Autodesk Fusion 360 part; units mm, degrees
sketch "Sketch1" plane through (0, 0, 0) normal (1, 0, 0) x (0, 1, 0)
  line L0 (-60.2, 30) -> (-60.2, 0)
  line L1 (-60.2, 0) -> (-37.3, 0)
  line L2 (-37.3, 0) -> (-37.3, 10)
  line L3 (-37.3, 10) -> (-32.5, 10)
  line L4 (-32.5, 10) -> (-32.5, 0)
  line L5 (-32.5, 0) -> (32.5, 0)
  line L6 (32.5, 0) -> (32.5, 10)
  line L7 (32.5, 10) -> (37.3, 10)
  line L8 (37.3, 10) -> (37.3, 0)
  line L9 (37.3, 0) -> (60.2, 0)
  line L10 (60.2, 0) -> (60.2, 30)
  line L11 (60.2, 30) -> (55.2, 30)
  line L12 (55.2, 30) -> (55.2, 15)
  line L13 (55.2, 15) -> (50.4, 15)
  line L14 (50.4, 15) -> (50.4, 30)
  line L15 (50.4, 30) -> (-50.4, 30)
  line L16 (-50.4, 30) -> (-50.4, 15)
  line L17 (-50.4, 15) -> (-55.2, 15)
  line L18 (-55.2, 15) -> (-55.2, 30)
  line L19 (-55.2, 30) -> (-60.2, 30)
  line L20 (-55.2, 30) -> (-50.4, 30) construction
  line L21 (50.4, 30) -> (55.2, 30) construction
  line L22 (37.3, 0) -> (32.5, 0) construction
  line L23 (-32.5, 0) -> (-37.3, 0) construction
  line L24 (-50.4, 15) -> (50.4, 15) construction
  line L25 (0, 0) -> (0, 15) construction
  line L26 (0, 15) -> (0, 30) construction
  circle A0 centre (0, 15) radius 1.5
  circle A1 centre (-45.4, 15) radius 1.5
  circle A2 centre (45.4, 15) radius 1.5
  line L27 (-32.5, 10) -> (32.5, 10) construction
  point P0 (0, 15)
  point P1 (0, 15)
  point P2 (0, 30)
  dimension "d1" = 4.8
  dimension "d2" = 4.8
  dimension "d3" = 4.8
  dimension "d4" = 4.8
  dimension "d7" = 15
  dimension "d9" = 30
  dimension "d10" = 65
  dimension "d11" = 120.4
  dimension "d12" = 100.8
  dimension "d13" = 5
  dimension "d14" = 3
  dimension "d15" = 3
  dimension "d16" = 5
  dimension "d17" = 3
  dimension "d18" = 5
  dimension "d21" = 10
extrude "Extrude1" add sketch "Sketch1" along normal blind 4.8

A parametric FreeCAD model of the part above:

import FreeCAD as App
import Part
import Sketcher

V = App.Vector
Q = App.Units.Quantity

doc = App.newDocument("Part")
body = doc.addObject("PartDesign::Body", "Body")

sketch1 = doc.addObject("Sketcher::SketchObject", "Sketch")
body.addObject(sketch1)
sketch1.AttachmentSupport = (doc.YZ_Plane, [""])
sketch1.MapMode = "FlatFace"
sketch1.addGeometry(Part.LineSegment(V(-55.2, 30, 0), V(-60.2, 30, 0)), False)
sketch1.addGeometry(Part.LineSegment(V(-60.2, 30, 0), V(-60.2, 0, 0)), False)
sketch1.addGeometry(Part.LineSegment(V(-60.2, 0, 0), V(-37.3, 0, 0)), False)
sketch1.addGeometry(Part.LineSegment(V(-37.3, 0, 0), V(-37.3, 10, 0)), False)
sketch1.addGeometry(Part.LineSegment(V(-37.3, 10, 0), V(-32.5, 10, 0)), False)
sketch1.addGeometry(Part.LineSegment(V(-32.5, 10, 0), V(-32.5, 0, 0)), False)
sketch1.addGeometry(Part.LineSegment(V(-32.5, 0, 0), V(32.5, 0, 0)), False)
sketch1.addGeometry(Part.LineSegment(V(32.5, 0, 0), V(32.5, 10, 0)), False)
sketch1.addGeometry(Part.LineSegment(V(32.5, 10, 0), V(37.3, 10, 0)), False)
sketch1.addGeometry(Part.LineSegment(V(37.3, 10, 0), V(37.3, 0, 0)), False)
sketch1.addGeometry(Part.LineSegment(V(37.3, 0, 0), V(60.2, 0, 0)), False)
sketch1.addGeometry(Part.LineSegment(V(60.2, 0, 0), V(60.2, 30, 0)), False)
sketch1.addGeometry(Part.LineSegment(V(60.2, 30, 0), V(55.2, 30, 0)), False)
sketch1.addGeometry(Part.LineSegment(V(55.2, 30, 0), V(55.2, 15, 0)), False)
sketch1.addGeometry(Part.LineSegment(V(55.2, 15, 0), V(50.4, 15, 0)), False)
sketch1.addGeometry(Part.LineSegment(V(50.4, 15, 0), V(50.4, 30, 0)), False)
sketch1.addGeometry(Part.LineSegment(V(50.4, 30, 0), V(-50.4, 30, 0)), False)
sketch1.addGeometry(Part.LineSegment(V(-50.4, 30, 0), V(-50.4, 15, 0)), False)
sketch1.addGeometry(Part.LineSegment(V(-50.4, 15, 0), V(-55.2, 15, 0)), False)
sketch1.addGeometry(Part.LineSegment(V(-55.2, 15, 0), V(-55.2, 30, 0)), False)
sketch1.addGeometry(Part.Circle(V(-45.4, 15, 0), V(0, 0, 1), 1.5), False)
sketch1.addGeometry(Part.Circle(V(0, 15, 0), V(0, 0, 1), 1.5), False)
sketch1.addGeometry(Part.Circle(V(45.4, 15, 0), V(0, 0, 1), 1.5), False)
sketch1.addConstraint(Sketcher.Constraint("Coincident", 0, 2, 1, 1))
sketch1.addConstraint(Sketcher.Constraint("Coincident", 1, 2, 2, 1))
sketch1.addConstraint(Sketcher.Constraint("Coincident", 2, 2, 3, 1))
sketch1.addConstraint(Sketcher.Constraint("Coincident", 3, 2, 4, 1))
sketch1.addConstraint(Sketcher.Constraint("Coincident", 4, 2, 5, 1))
sketch1.addConstraint(Sketcher.Constraint("Coincident", 5, 2, 6, 1))
sketch1.addConstraint(Sketcher.Constraint("Coincident", 6, 2, 7, 1))
sketch1.addConstraint(Sketcher.Constraint("Coincident", 7, 2, 8, 1))
sketch1.addConstraint(Sketcher.Constraint("Coincident", 8, 2, 9, 1))
sketch1.addConstraint(Sketcher.Constraint("Coincident", 9, 2, 10, 1))
sketch1.addConstraint(Sketcher.Constraint("Coincident", 10, 2, 11, 1))
sketch1.addConstraint(Sketcher.Constraint("Coincident", 11, 2, 12, 1))
sketch1.addConstraint(Sketcher.Constraint("Coincident", 12, 2, 13, 1))
sketch1.addConstraint(Sketcher.Constraint("Coincident", 13, 2, 14, 1))
sketch1.addConstraint(Sketcher.Constraint("Coincident", 14, 2, 15, 1))
sketch1.addConstraint(Sketcher.Constraint("Coincident", 15, 2, 16, 1))
sketch1.addConstraint(Sketcher.Constraint("Coincident", 16, 2, 17, 1))
sketch1.addConstraint(Sketcher.Constraint("Coincident", 17, 2, 18, 1))
sketch1.addConstraint(Sketcher.Constraint("Coincident", 18, 2, 19, 1))
sketch1.addConstraint(Sketcher.Constraint("Coincident", 19, 2, 0, 1))
sketch1.addConstraint(Sketcher.Constraint("Horizontal", 0))
sketch1.addConstraint(Sketcher.Constraint("Vertical", 1))
sketch1.addConstraint(Sketcher.Constraint("Horizontal", 2))
sketch1.addConstraint(Sketcher.Constraint("Vertical", 3))
sketch1.addConstraint(Sketcher.Constraint("Horizontal", 4))
sketch1.addConstraint(Sketcher.Constraint("Vertical", 5))
sketch1.addConstraint(Sketcher.Constraint("Horizontal", 6))
sketch1.addConstraint(Sketcher.Constraint("Vertical", 7))
sketch1.addConstraint(Sketcher.Constraint("Horizontal", 8))
sketch1.addConstraint(Sketcher.Constraint("Vertical", 9))
sketch1.addConstraint(Sketcher.Constraint("Horizontal", 10))
sketch1.addConstraint(Sketcher.Constraint("Vertical", 11))
sketch1.addConstraint(Sketcher.Constraint("Horizontal", 12))
sketch1.addConstraint(Sketcher.Constraint("Vertical", 13))
sketch1.addConstraint(Sketcher.Constraint("Horizontal", 14))
sketch1.addConstraint(Sketcher.Constraint("Vertical", 15))
sketch1.addConstraint(Sketcher.Constraint("Horizontal", 16))
sketch1.addConstraint(Sketcher.Constraint("Vertical", 17))
sketch1.addConstraint(Sketcher.Constraint("Horizontal", 18))
sketch1.addConstraint(Sketcher.Constraint("Vertical", 19))
sketch1.addConstraint(Sketcher.Constraint("Equal", 20, 21))
sketch1.addConstraint(Sketcher.Constraint("Equal", 21, 22))
sketch1.addConstraint(Sketcher.Constraint("Symmetric", 5, 2, 6, 2, -1, 1))
sketch1.addConstraint(Sketcher.Constraint("Symmetric", 2, 2, 9, 2, -1, 1))
sketch1.addConstraint(Sketcher.Constraint("Symmetric", 20, 3, 22, 3, -2))
sketch1.addConstraint(Sketcher.Constraint("Symmetric", 1, 2, 10, 2, -2))
sketch1.addConstraint(Sketcher.Constraint("Symmetric", 14, 2, 17, 2, -2))
sketch1.addConstraint(Sketcher.Constraint("Symmetric", 12, 2, 19, 2, -2))
sketch1.addConstraint(Sketcher.Constraint("PointOnObject", 21, 3, -2))
sketch1.addConstraint(Sketcher.Constraint("Horizontal", 20, 3, 21, 3))
sketch1.addConstraint(Sketcher.Constraint("Horizontal", 4, 2, 7, 2))
sketch1.addConstraint(Sketcher.Constraint("Horizontal", 22, 3, 13, 2))
sketch1.addConstraint(Sketcher.Constraint("Horizontal", 12, 2, 15, 2))
sketch1.addConstraint(Sketcher.Constraint("Equal", 8, 14))
sketch1.addConstraint(Sketcher.Constraint("Diameter", 20, Q("3 mm")))
sketch1.addConstraint(Sketcher.Constraint("DistanceX", 0, 2, 0, 1, Q("5 mm")))
sketch1.addConstraint(Sketcher.Constraint("DistanceX", 6, 1, 6, 2, Q("65 mm")))
sketch1.addConstraint(Sketcher.Constraint("DistanceY", 1, 2, 1, 1, Q("30 mm")))
sketch1.addConstraint(Sketcher.Constraint("DistanceY", 3, 1, 3, 2, Q("10 mm")))
sketch1.addConstraint(Sketcher.Constraint("DistanceY", 13, 2, 13, 1, Q("15 mm")))
sketch1.addConstraint(Sketcher.Constraint("DistanceX", 4, 1, 4, 2, Q("4.8 mm")))
sketch1.addConstraint(Sketcher.Constraint("DistanceX", 16, 2, 16, 1, Q("100.8 mm")))
sketch1.addConstraint(Sketcher.Constraint("DistanceX", 22, 3, 14, 2, Q("5 mm")))
pad1 = doc.addObject("PartDesign::Pad", "Pad")
body.addObject(pad1)
pad1.Profile = sketch1
pad1.Length = 4.8

doc.recompute()
